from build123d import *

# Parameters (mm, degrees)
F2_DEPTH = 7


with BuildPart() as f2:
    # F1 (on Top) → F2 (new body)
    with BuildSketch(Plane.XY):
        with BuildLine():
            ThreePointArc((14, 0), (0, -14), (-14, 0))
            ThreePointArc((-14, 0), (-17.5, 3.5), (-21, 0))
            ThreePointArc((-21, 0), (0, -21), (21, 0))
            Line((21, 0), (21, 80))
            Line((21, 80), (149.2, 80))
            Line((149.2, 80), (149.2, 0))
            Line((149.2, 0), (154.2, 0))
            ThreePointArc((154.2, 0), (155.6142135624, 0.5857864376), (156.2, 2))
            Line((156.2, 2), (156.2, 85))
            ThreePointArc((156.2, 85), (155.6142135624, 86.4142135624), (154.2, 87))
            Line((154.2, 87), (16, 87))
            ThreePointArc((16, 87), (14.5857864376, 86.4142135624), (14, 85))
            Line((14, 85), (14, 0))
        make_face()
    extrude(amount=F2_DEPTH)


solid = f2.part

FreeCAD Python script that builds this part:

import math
import FreeCAD as App
import Part
import Sketcher

doc = App.newDocument("Part")
body = doc.addObject("PartDesign::Body", "Body")

sketch1 = body.newObject("Sketcher::SketchObject", "Sketch")
sketch1.AttachmentSupport = (doc.getObject("XY_Plane"), [""])
sketch1.MapMode = "FlatFace"
sketch1.addGeometry([
    Part.ArcOfCircle(Part.Circle(App.Vector(0, 0, 0), App.Vector(0, 0, 1), 14), math.radians(180), math.radians(360)),
    Part.ArcOfCircle(Part.Circle(App.Vector(-17.5, 0, 0), App.Vector(0, 0, 1), 3.5), math.radians(0), math.radians(180)),
    Part.ArcOfCircle(Part.Circle(App.Vector(0, 0, 0), App.Vector(0, 0, 1), 21), math.radians(180), math.radians(360)),
    Part.LineSegment(App.Vector(21, 0, 0), App.Vector(21, 80, 0)),
    Part.LineSegment(App.Vector(21, 80, 0), App.Vector(149.2, 80, 0)),
    Part.LineSegment(App.Vector(149.2, 80, 0), App.Vector(149.2, 0, 0)),
    Part.LineSegment(App.Vector(149.2, 0, 0), App.Vector(154.2, 0, 0)),
    Part.ArcOfCircle(Part.Circle(App.Vector(154.2, 2, 0), App.Vector(0, 0, 1), 2), math.radians(-90), math.radians(0)),
    Part.LineSegment(App.Vector(156.2, 2, 0), App.Vector(156.2, 85, 0)),
    Part.ArcOfCircle(Part.Circle(App.Vector(154.2, 85, 0), App.Vector(0, 0, 1), 2), math.radians(0), math.radians(90)),
    Part.LineSegment(App.Vector(154.2, 87, 0), App.Vector(16, 87, 0)),
    Part.ArcOfCircle(Part.Circle(App.Vector(16, 85, 0), App.Vector(0, 0, 1), 2), math.radians(90), math.radians(180)),
    Part.LineSegment(App.Vector(14, 85, 0), App.Vector(14, 0, 0)),
], False)
sketch1.addConstraint([
    Sketcher.Constraint("Tangent", 0, 1, 1, 1),
    Sketcher.Constraint("Tangent", 1, 2, 2, 1),
    Sketcher.Constraint("Tangent", 2, 2, 3, 1),
    Sketcher.Constraint("Coincident", 3, 2, 4, 1),
    Sketcher.Constraint("Coincident", 4, 2, 5, 1),
    Sketcher.Constraint("Coincident", 5, 2, 6, 1),
    Sketcher.Constraint("Tangent", 6, 2, 7, 1),
    Sketcher.Constraint("Tangent", 7, 2, 8, 1),
    Sketcher.Constraint("Tangent", 8, 2, 9, 1),
    Sketcher.Constraint("Tangent", 9, 2, 10, 1),
    Sketcher.Constraint("Tangent", 10, 2, 11, 1),
    Sketcher.Constraint("Tangent", 11, 2, 12, 1),
    Sketcher.Constraint("Tangent", 12, 2, 0, 2),
    Sketcher.Constraint("Vertical", 3),
    Sketcher.Constraint("Horizontal", 4),
    Sketcher.Constraint("Vertical", 5),
    Sketcher.Constraint("Horizontal", 6),
    Sketcher.Constraint("Vertical", 8),
    Sketcher.Constraint("Horizontal", 10),
    Sketcher.Constraint("Vertical", 12),
    Sketcher.Constraint("Coincident", 0, 3, -1, 1),
    Sketcher.Constraint("Coincident", 2, 3, -1, 1),
    Sketcher.Constraint("Equal", 7, 9),
    Sketcher.Constraint("Equal", 9, 11),
    Sketcher.Constraint("PointOnObject", 1, 3, -1),
    Sketcher.Constraint("PointOnObject", 5, 2, -1),
    Sketcher.Constraint("Radius", 0, 14.0),
    Sketcher.Constraint("Radius", 2, 21.0),
    Sketcher.Constraint("Radius", 7, 2.0),
    Sketcher.Constraint("DistanceX", 6, 1, 6, 2, 5.0),
    Sketcher.Constraint("DistanceY", 3, 1, 3, 2, 80.0),
    Sketcher.Constraint("DistanceY", 8, 1, 8, 2, 83.0),
    Sketcher.Constraint("DistanceX", 4, 1, 4, 2, 128.2),
])
pad1 = body.newObject("PartDesign::Pad", "Pad")
pad1.Profile = sketch1
pad1.Length = 7

doc.recompute()
